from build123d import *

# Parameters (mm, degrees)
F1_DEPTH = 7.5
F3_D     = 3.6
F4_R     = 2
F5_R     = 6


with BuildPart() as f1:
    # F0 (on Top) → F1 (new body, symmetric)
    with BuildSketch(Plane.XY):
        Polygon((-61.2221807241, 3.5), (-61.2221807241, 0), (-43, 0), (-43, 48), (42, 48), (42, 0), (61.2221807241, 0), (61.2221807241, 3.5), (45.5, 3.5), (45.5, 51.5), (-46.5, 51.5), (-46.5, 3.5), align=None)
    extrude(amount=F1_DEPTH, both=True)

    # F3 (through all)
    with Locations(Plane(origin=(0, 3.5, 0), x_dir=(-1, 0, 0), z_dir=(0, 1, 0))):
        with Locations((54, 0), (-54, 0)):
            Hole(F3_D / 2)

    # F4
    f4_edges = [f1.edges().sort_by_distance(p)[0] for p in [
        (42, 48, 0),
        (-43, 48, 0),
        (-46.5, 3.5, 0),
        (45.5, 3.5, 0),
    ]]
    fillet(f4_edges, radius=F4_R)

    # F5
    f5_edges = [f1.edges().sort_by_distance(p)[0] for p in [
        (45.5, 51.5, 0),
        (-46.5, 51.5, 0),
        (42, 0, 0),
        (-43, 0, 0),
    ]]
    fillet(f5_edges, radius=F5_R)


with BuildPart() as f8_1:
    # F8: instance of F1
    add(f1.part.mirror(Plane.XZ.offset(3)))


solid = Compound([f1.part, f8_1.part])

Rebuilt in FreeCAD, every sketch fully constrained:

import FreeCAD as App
import Part
import Sketcher
from FreeCAD import Vector


def edges_at(feature, points):
    """Names of the edges that pass closest to the given points."""
    edges = feature.Shape.Edges
    near = lambda p: min(range(len(edges)), key=lambda i: edges[i].distToShape(Part.Vertex(*p))[0])
    return sorted({f"Edge{near(p) + 1}" for p in points})

doc = App.newDocument("Part")
params = doc.addObject("Spreadsheet::Sheet", "Params")
for row, (alias, value) in enumerate([
    ("sketch1_width", "85 mm"),
    ("sketch1_width2", "92 mm"),
    ("sketch1_height", "48 mm"),
    ("sketch1_height2", "3.5 mm"),
    ("pad1_length", "15 mm"),
    ("sketch2_diameter", "3.6 mm"),
    ("hole_diameter", "3.6 mm"),
    ("fillet_radius", "2 mm"),
    ("fillet2_radius", "6 mm"),
], start=1):
    params.set(f"A{row}", alias)
    params.set(f"B{row}", "=" + value)
    params.setAlias(f"B{row}", alias)

body = doc.addObject("PartDesign::Body", "Body")

sketch1 = body.newObject("Sketcher::SketchObject", "Sketch")
sketch1.AttachmentSupport = (doc.getObject("XY_Plane"), [""])
sketch1.MapMode = "FlatFace"
sketch1.addGeometry(Part.LineSegment(Vector(-61.2, 3.5, 0), Vector(-61.2, 0, 0)), False)
sketch1.addGeometry(Part.LineSegment(Vector(-61.2, 0, 0), Vector(-43, 0, 0)), False)
sketch1.addGeometry(Part.LineSegment(Vector(-43, 0, 0), Vector(-43, 48, 0)), False)
sketch1.addGeometry(Part.LineSegment(Vector(-43, 48, 0), Vector(42, 48, 0)), False)
sketch1.addGeometry(Part.LineSegment(Vector(42, 48, 0), Vector(42, 0, 0)), False)
sketch1.addGeometry(Part.LineSegment(Vector(42, 0, 0), Vector(61.2, 0, 0)), False)
sketch1.addGeometry(Part.LineSegment(Vector(61.2, 0, 0), Vector(61.2, 3.5, 0)), False)
sketch1.addGeometry(Part.LineSegment(Vector(61.2, 3.5, 0), Vector(45.5, 3.5, 0)), False)
sketch1.addGeometry(Part.LineSegment(Vector(45.5, 3.5, 0), Vector(45.5, 51.5, 0)), False)
sketch1.addGeometry(Part.LineSegment(Vector(45.5, 51.5, 0), Vector(-46.5, 51.5, 0)), False)
sketch1.addGeometry(Part.LineSegment(Vector(-46.5, 51.5, 0), Vector(-46.5, 3.5, 0)), False)
sketch1.addGeometry(Part.LineSegment(Vector(-46.5, 3.5, 0), Vector(-61.2, 3.5, 0)), False)
sketch1.addConstraint(Sketcher.Constraint("Coincident", 0, 2, 1, 1))
sketch1.addConstraint(Sketcher.Constraint("Coincident", 1, 2, 2, 1))
sketch1.addConstraint(Sketcher.Constraint("Coincident", 2, 2, 3, 1))
sketch1.addConstraint(Sketcher.Constraint("Coincident", 3, 2, 4, 1))
sketch1.addConstraint(Sketcher.Constraint("Coincident", 4, 2, 5, 1))
sketch1.addConstraint(Sketcher.Constraint("Coincident", 5, 2, 6, 1))
sketch1.addConstraint(Sketcher.Constraint("Coincident", 6, 2, 7, 1))
sketch1.addConstraint(Sketcher.Constraint("Coincident", 7, 2, 8, 1))
sketch1.addConstraint(Sketcher.Constraint("Coincident", 8, 2, 9, 1))
sketch1.addConstraint(Sketcher.Constraint("Coincident", 9, 2, 10, 1))
sketch1.addConstraint(Sketcher.Constraint("Coincident", 10, 2, 11, 1))
sketch1.addConstraint(Sketcher.Constraint("Coincident", 11, 2, 0, 1))
sketch1.addConstraint(Sketcher.Constraint("Vertical", 0))
sketch1.addConstraint(Sketcher.Constraint("Horizontal", 1))
sketch1.addConstraint(Sketcher.Constraint("Vertical", 2))
sketch1.addConstraint(Sketcher.Constraint("Horizontal", 3))
sketch1.addConstraint(Sketcher.Constraint("Vertical", 4))
sketch1.addConstraint(Sketcher.Constraint("Horizontal", 5))
sketch1.addConstraint(Sketcher.Constraint("Vertical", 6))
sketch1.addConstraint(Sketcher.Constraint("Horizontal", 7))
sketch1.addConstraint(Sketcher.Constraint("Vertical", 8))
sketch1.addConstraint(Sketcher.Constraint("Horizontal", 9))
sketch1.addConstraint(Sketcher.Constraint("Vertical", 10))
sketch1.addConstraint(Sketcher.Constraint("Horizontal", 11))
sketch1.addConstraint(Sketcher.Constraint("Symmetric", 0, 2, 5, 2, -1, 1))
sketch1.addConstraint(Sketcher.Constraint("PointOnObject", 0, 2, -1))
sketch1.addConstraint(Sketcher.Constraint("Horizontal", 7, 2, 10, 2))
sketch1.addConstraint(Sketcher.Constraint("Equal", 4, 8))
sketch1.addConstraint(Sketcher.Constraint("DistanceX", 3, 1, 3, 2, 85.0))
sketch1.addConstraint(Sketcher.Constraint("DistanceX", 9, 2, 9, 1, 92.0))
sketch1.addConstraint(Sketcher.Constraint("DistanceY", 2, 1, 2, 2, 48.0))
sketch1.addConstraint(Sketcher.Constraint("DistanceY", 0, 2, 0, 1, 3.5))
sketch1.addConstraint(Sketcher.Constraint("DistanceX", 1, 2, -1, 1, 43.0))
sketch1.addConstraint(Sketcher.Constraint("DistanceX", -1, 1, 7, 2, 45.5))
sketch1.addConstraint(Sketcher.Constraint("DistanceX", 1, 1, 1, 2, 18.222181))
sketch1.setExpression("Constraints[28]", "Params.sketch1_width")
sketch1.setExpression("Constraints[29]", "Params.sketch1_width2")
sketch1.setExpression("Constraints[30]", "Params.sketch1_height")
sketch1.setExpression("Constraints[31]", "Params.sketch1_height2")
pad1 = body.newObject("PartDesign::Pad", "Pad")
pad1.Profile = sketch1
pad1.setExpression("Length", "Params.pad1_length")
pad1.Midplane = True

sketch2 = body.newObject("Sketcher::SketchObject", "Sketch001")
sketch2.AttachmentSupport = (doc.getObject("XZ_Plane"), [""])
sketch2.MapMode = "FlatFace"
sketch2.AttachmentOffset = App.Placement(Vector(0, 0, -3.5), App.Rotation())
sketch2.addGeometry(Part.Circle(Vector(-54, 0, 0), Vector(0, 0, 1), 1.8), False)
sketch2.addGeometry(Part.Circle(Vector(54, 0, 0), Vector(0, 0, 1), 1.8), False)
sketch2.addConstraint(Sketcher.Constraint("Equal", 0, 1))
sketch2.addConstraint(Sketcher.Constraint("Symmetric", 0, 3, 1, 3, -1, 1))
sketch2.addConstraint(Sketcher.Constraint("PointOnObject", 0, 3, -1))
sketch2.addConstraint(Sketcher.Constraint("Diameter", 0, 3.6))
sketch2.addConstraint(Sketcher.Constraint("DistanceX", 0, 3, -1, 1, 54.0))
sketch2.setExpression("Constraints[3]", "Params.sketch2_diameter")
doc.recompute()
hole = body.newObject("PartDesign::Hole", "Hole")
hole.Profile = sketch2
hole.ThreadType = "None"
hole.setExpression("Diameter", "Params.hole_diameter")
hole.DepthType = "ThroughAll"
hole.Reversed = True
doc.recompute()

fillet = body.newObject("PartDesign::Fillet", "Fillet")
fillet.Base = (hole, edges_at(hole, [
    (42, 48, 0),
    (-43, 48, 0),
    (-46.5, 3.5, 0),
    (45.5, 3.5, 0),
]))
fillet.setExpression("Radius", "Params.fillet_radius")
doc.recompute()

fillet2 = body.newObject("PartDesign::Fillet", "Fillet001")
fillet2.Base = (fillet, edges_at(fillet, [
    (45.5, 51.5, 0),
    (-46.5, 51.5, 0),
    (42, 0, 0),
    (-43, 0, 0),
]))
fillet2.setExpression("Radius", "Params.fillet2_radius")
body2 = doc.addObject("PartDesign::Body", "Body001")
doc.recompute()

mirroring = doc.addObject("Part::Mirroring", "Mirroring")
mirroring.Source = body
mirroring.Base = Vector(0, -3, 0)
mirroring.Normal = Vector(0, -1, 0)
body2.BaseFeature = mirroring
doc.recompute()
mirroring.Visibility = False

doc.recompute()
